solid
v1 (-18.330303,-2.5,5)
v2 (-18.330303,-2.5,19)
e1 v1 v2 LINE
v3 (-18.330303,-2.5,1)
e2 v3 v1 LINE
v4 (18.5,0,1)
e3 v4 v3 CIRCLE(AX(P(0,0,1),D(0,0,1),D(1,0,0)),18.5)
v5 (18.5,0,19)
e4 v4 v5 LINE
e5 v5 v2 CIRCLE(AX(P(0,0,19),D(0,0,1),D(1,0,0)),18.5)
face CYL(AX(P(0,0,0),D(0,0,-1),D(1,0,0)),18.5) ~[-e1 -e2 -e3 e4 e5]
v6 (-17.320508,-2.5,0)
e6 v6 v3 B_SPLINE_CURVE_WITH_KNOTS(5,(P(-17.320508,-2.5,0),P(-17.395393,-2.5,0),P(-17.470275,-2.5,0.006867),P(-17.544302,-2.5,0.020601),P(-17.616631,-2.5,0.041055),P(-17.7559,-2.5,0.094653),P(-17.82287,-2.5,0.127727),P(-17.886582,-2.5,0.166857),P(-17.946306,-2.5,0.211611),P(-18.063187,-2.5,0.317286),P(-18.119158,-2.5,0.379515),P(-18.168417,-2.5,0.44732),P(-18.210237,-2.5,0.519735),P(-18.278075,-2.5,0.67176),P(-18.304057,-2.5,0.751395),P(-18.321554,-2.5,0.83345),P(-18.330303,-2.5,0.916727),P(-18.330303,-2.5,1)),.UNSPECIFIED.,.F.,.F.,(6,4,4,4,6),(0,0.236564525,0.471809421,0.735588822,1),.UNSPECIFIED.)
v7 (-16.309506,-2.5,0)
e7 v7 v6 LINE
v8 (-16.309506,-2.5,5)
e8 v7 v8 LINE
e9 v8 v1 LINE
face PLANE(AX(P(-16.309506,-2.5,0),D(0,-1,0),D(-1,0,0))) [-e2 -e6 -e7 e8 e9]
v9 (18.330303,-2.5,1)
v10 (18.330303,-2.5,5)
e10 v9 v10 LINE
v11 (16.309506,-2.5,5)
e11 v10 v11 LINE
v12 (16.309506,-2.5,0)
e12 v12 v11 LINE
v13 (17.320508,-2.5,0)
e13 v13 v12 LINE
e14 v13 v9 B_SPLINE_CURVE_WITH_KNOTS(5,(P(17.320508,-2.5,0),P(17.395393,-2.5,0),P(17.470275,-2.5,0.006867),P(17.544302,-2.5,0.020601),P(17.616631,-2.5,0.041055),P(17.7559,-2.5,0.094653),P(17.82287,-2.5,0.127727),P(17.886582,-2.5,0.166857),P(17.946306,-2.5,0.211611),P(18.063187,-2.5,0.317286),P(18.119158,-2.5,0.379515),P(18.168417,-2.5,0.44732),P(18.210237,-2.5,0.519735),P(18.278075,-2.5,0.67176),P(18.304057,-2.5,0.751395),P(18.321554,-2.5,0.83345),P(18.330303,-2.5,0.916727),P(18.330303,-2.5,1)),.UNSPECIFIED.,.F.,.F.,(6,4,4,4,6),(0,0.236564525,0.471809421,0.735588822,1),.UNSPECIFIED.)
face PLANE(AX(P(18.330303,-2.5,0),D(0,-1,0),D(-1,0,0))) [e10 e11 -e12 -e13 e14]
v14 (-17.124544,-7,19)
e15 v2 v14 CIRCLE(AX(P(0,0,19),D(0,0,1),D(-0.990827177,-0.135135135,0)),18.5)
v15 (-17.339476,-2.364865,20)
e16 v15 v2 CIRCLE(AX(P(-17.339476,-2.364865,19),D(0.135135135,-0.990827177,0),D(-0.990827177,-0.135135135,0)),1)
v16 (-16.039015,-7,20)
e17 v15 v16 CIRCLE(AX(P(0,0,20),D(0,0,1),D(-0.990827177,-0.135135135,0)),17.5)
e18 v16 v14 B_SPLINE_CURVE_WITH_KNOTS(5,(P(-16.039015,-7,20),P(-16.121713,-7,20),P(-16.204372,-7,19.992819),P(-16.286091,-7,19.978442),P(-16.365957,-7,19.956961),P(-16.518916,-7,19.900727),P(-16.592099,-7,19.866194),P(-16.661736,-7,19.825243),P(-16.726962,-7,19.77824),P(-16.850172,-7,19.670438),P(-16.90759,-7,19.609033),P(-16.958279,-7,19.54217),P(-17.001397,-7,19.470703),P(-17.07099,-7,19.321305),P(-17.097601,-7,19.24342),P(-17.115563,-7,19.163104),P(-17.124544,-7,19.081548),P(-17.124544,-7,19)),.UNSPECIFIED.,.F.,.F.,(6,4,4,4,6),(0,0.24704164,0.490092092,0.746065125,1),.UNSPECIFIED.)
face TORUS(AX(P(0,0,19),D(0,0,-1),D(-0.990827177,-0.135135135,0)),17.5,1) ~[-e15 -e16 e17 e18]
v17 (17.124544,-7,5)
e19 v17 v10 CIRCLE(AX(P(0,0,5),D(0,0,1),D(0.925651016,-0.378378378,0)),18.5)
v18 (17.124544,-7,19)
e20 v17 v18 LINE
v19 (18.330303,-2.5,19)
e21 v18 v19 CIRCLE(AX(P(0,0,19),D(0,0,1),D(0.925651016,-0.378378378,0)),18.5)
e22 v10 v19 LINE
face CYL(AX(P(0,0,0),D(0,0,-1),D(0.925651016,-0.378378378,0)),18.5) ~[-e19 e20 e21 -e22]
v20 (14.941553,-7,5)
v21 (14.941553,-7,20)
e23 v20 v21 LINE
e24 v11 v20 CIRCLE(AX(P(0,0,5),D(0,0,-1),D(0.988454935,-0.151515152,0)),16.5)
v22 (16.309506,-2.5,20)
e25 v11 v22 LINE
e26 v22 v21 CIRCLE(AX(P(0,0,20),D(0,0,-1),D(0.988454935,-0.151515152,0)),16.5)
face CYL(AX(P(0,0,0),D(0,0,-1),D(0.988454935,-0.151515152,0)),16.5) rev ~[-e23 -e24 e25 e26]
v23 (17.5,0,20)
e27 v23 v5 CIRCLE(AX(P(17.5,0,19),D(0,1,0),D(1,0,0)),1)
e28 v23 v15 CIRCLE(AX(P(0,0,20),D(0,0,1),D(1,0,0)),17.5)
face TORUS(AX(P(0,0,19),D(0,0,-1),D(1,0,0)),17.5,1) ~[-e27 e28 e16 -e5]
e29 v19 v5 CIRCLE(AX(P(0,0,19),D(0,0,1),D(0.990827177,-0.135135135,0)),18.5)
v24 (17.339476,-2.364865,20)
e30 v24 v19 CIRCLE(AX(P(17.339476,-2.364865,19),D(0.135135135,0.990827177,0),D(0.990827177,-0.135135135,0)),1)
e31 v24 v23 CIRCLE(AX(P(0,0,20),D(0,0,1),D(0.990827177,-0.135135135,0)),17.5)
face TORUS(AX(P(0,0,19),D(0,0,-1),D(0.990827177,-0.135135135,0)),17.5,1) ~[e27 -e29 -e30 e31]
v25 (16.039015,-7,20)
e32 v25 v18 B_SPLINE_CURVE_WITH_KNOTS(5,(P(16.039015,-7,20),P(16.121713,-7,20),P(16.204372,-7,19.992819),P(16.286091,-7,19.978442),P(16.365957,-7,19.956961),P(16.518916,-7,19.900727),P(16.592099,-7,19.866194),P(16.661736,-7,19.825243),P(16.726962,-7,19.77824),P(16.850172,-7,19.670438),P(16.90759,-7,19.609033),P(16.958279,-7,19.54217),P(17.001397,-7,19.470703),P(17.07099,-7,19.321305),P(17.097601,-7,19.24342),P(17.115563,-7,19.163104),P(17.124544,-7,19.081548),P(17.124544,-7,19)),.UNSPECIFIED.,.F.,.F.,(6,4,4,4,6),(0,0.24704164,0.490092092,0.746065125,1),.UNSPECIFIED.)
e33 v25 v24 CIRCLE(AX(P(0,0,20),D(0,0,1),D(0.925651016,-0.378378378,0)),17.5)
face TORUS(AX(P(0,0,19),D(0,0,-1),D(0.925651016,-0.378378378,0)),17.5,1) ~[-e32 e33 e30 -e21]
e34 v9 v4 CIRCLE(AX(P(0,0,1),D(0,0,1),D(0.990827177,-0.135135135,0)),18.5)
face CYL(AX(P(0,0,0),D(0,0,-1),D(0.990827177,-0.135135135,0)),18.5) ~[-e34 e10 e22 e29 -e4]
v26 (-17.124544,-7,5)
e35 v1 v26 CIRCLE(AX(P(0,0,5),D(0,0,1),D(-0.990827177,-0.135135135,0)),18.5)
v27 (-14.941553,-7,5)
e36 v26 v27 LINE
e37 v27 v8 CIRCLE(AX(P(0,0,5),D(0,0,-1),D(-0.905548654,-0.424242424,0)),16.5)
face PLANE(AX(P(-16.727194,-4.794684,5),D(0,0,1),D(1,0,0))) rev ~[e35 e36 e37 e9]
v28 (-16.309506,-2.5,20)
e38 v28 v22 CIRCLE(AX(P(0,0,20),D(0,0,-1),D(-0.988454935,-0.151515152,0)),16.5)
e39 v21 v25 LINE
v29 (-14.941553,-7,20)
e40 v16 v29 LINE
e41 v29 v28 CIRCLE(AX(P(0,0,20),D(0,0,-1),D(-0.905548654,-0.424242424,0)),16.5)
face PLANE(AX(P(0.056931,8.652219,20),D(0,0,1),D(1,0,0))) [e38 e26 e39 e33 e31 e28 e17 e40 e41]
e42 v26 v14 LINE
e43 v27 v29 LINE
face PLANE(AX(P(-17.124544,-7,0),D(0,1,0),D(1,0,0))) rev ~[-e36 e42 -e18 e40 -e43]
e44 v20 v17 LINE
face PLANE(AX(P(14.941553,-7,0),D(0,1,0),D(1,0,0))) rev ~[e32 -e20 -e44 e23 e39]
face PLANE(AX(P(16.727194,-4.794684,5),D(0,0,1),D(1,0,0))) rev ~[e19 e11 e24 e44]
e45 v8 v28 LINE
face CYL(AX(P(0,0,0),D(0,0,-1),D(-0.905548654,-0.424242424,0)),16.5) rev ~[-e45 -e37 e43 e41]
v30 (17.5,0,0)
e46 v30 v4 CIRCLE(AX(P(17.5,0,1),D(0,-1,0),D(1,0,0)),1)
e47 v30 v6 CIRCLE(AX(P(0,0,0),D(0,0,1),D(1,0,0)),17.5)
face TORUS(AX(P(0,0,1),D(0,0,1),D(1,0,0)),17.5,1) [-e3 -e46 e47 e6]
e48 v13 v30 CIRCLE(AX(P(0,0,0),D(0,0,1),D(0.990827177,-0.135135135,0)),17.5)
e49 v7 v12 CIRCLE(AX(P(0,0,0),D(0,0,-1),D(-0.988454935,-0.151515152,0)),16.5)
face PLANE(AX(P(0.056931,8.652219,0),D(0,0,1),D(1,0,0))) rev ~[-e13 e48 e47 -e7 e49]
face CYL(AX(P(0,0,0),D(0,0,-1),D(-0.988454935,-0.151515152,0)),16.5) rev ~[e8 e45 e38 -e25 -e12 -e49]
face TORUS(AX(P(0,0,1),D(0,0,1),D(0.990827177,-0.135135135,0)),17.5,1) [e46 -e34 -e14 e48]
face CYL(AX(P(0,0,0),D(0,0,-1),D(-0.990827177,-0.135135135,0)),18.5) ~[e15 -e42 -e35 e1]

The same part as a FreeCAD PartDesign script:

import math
import FreeCAD as App
import Part
import Sketcher

V = App.Vector


def edges_at(feature, points):
    """Names of the edges that pass closest to the given points."""
    edges = feature.Shape.Edges
    near = lambda p: min(range(len(edges)), key=lambda i: edges[i].distToShape(Part.Vertex(*p))[0])
    return sorted({f"Edge{near(p) + 1}" for p in points})

doc = App.newDocument("Part")
body = doc.addObject("PartDesign::Body", "Body")

sketch1 = body.newObject("Sketcher::SketchObject", "Sketch")
sketch1.AttachmentSupport = (doc.getObject("XY_Plane"), [""])
sketch1.MapMode = "FlatFace"
sketch1.addGeometry([
    Part.ArcOfCircle(Part.Circle(V(0, 0, 0), V(0, 0, 1), 16.5), math.radians(-8.714742), math.radians(188.714742)),
    Part.ArcOfCircle(Part.Circle(V(0, 0, 0), V(0, 0, 1), 16.5), math.radians(-25.102721), math.radians(-8.714742)),
    Part.LineSegment(V(14.941553, -7, 0), V(17.124544, -7, 0)),
    Part.ArcOfCircle(Part.Circle(V(0, 0, 0), V(0, 0, 1), 18.5), math.radians(-22.233272), math.radians(-7.766434)),
    Part.ArcOfCircle(Part.Circle(V(0, 0, 0), V(0, 0, 1), 18.5), math.radians(-7.766434), math.radians(0)),
    Part.ArcOfCircle(Part.Circle(V(0, 0, 0), V(0, 0, 1), 18.5), math.radians(0), math.radians(187.766434)),
    Part.ArcOfCircle(Part.Circle(V(0, 0, 0), V(0, 0, 1), 18.5), math.radians(-172.233566), math.radians(-157.766728)),
    Part.LineSegment(V(-17.124544, -7, 0), V(-14.941553, -7, 0)),
    Part.ArcOfCircle(Part.Circle(V(0, 0, 0), V(0, 0, 1), 16.5), math.radians(-171.285258), math.radians(-154.897279)),
], False)
sketch1.addConstraint([
    Sketcher.Constraint("Tangent", 0, 1, 1, 2),
    Sketcher.Constraint("Coincident", 1, 1, 2, 1),
    Sketcher.Constraint("Coincident", 2, 2, 3, 1),
    Sketcher.Constraint("Tangent", 3, 2, 4, 1),
    Sketcher.Constraint("Tangent", 4, 2, 5, 1),
    Sketcher.Constraint("Tangent", 5, 2, 6, 1),
    Sketcher.Constraint("Coincident", 6, 2, 7, 1),
    Sketcher.Constraint("Coincident", 7, 2, 8, 2),
    Sketcher.Constraint("Tangent", 8, 1, 0, 2),
    Sketcher.Constraint("Horizontal", 2),
    Sketcher.Constraint("Horizontal", 7),
    Sketcher.Constraint("Coincident", 0, 3, -1, 1),
    Sketcher.Constraint("Coincident", 3, 3, -1, 1),
    Sketcher.Constraint("Coincident", 5, 3, -1, 1),
    Sketcher.Constraint("Equal", 0, 1),
    Sketcher.Constraint("Equal", 5, 6),
    Sketcher.Constraint("Equal", 1, 8),
    Sketcher.Constraint("PointOnObject", 4, 2, -1),
    Sketcher.Constraint("Horizontal", 0, 1, 3, 2),
    Sketcher.Constraint("Horizontal", 3, 2, 5, 2),
    Sketcher.Constraint("Horizontal", 2, 2, 6, 2),
    Sketcher.Constraint("Horizontal", 5, 2, 8, 1),
    Sketcher.Constraint("Radius", 0, 16.5),
    Sketcher.Constraint("Radius", 3, 18.5),
    Sketcher.Constraint("DistanceY", 1, 1, -1, 1, 7.0),
    Sketcher.Constraint("DistanceY", 0, 1, -1, 1, 2.5),
])
pad1 = body.newObject("PartDesign::Pad", "Pad")
pad1.Profile = sketch1
pad1.Length = 20

sketch2 = body.newObject("Sketcher::SketchObject", "Sketch001")
sketch2.AttachmentSupport = (doc.getObject("XY_Plane"), [""])
sketch2.MapMode = "FlatFace"
sketch2.addGeometry([
    Part.ArcOfCircle(Part.Circle(V(0, 0, 0), V(0, 0, 1), 16.5), math.radians(-171.285258), math.radians(-154.897279)),
    Part.LineSegment(V(-16.309506, -2.5, 0), V(-18.330303, -2.5, 0)),
    Part.ArcOfCircle(Part.Circle(V(0, 0, 0), V(0, 0, 1), 18.5), math.radians(-172.233566), math.radians(-157.766728)),
    Part.LineSegment(V(-17.124544, -7, 0), V(-14.941553, -7, 0)),
    Part.LineSegment(V(18.330303, -2.5, 0), V(16.309506, -2.5, 0)),
    Part.ArcOfCircle(Part.Circle(V(0, 0, 0), V(0, 0, 1), 16.5), math.radians(-25.102721), math.radians(-8.714742)),
    Part.LineSegment(V(14.941553, -7, 0), V(17.124544, -7, 0)),
    Part.ArcOfCircle(Part.Circle(V(0, 0, 0), V(0, 0, 1), 18.5), math.radians(-22.233272), math.radians(-7.766434)),
], False)
sketch2.addConstraint([
    Sketcher.Constraint("Coincident", 0, 1, 1, 1),
    Sketcher.Constraint("Coincident", 1, 2, 2, 1),
    Sketcher.Constraint("Coincident", 2, 2, 3, 1),
    Sketcher.Constraint("Coincident", 3, 2, 0, 2),
    Sketcher.Constraint("Coincident", 4, 2, 5, 2),
    Sketcher.Constraint("Coincident", 5, 1, 6, 1),
    Sketcher.Constraint("Coincident", 6, 2, 7, 1),
    Sketcher.Constraint("Coincident", 7, 2, 4, 1),
    Sketcher.Constraint("Horizontal", 1),
    Sketcher.Constraint("Horizontal", 3),
    Sketcher.Constraint("Horizontal", 4),
    Sketcher.Constraint("Horizontal", 6),
    Sketcher.Constraint("Coincident", 0, 3, -1, 1),
    Sketcher.Constraint("Coincident", 2, 3, -1, 1),
    Sketcher.Constraint("Coincident", 5, 3, -1, 1),
    Sketcher.Constraint("Coincident", 7, 3, -1, 1),
    Sketcher.Constraint("Equal", 0, 5),
    Sketcher.Constraint("Equal", 2, 7),
    Sketcher.Constraint("Horizontal", 1, 2, 4, 2),
    Sketcher.Constraint("Horizontal", 3, 2, 5, 1),
    Sketcher.Constraint("Radius", 0, 16.5),
    Sketcher.Constraint("Radius", 2, 18.5),
    Sketcher.Constraint("DistanceY", 2, 2, -1, 1, 7.0),
    Sketcher.Constraint("DistanceY", 0, 1, -1, 1, 2.5),
])
pocket1 = body.newObject("PartDesign::Pocket", "Pocket")
pocket1.Profile = sketch2
pocket1.Length = 5
pocket1.Reversed = True
doc.recompute()

fillet = body.newObject("PartDesign::Fillet", "Fillet")
fillet.Base = (pocket1, edges_at(pocket1, [(-1.253, 18.458, 20), (-1.253, 18.458, 0)]))
fillet.Radius = 1

doc.recompute()
